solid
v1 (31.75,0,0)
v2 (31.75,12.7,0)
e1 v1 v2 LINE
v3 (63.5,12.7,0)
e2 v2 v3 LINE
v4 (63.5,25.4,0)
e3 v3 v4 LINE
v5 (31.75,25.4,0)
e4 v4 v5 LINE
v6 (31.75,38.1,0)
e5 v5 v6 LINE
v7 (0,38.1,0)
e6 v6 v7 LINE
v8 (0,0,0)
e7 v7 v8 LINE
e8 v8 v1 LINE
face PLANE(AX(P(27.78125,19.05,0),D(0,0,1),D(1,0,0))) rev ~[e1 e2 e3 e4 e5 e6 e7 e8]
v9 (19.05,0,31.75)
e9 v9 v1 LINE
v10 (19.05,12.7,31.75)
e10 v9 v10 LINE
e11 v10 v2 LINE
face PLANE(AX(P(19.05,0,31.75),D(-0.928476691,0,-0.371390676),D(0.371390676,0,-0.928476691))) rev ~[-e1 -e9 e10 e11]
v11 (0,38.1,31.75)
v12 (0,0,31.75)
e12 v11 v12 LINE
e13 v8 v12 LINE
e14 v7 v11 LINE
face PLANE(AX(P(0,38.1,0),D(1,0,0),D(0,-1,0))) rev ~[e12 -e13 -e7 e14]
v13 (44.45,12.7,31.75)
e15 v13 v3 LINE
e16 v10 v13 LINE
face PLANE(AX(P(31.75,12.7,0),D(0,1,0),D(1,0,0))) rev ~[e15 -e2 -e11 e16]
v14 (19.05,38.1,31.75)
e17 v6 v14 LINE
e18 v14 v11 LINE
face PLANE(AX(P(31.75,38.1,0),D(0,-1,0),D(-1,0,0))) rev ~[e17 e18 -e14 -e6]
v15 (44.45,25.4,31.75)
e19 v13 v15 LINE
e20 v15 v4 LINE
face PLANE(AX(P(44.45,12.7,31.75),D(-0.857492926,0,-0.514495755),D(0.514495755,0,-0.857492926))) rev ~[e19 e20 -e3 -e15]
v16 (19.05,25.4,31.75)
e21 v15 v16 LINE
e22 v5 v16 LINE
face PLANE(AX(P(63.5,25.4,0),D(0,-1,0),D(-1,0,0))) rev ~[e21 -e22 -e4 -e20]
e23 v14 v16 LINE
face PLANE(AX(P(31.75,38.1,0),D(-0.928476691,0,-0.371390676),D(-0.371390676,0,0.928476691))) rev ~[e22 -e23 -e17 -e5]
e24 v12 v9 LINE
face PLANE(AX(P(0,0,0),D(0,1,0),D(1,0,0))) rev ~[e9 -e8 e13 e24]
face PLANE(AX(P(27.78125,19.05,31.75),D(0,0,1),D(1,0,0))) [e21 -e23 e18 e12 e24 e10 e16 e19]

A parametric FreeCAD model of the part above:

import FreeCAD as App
import Part
import Sketcher
Q = App.Units.Quantity

doc = App.newDocument("Part")
body = doc.addObject("PartDesign::Body", "Body")

sketch1 = doc.addObject("Sketcher::SketchObject", "Sketch")
body.addObject(sketch1)
sketch1.AttachmentSupport = (doc.XY_Plane, [""])
sketch1.MapMode = "FlatFace"
sketch1.addGeometry(Part.LineSegment(App.Vector(0, 38.1, 0), App.Vector(0, 0, 0)), False)
sketch1.addGeometry(Part.LineSegment(App.Vector(0, 0, 0), App.Vector(31.75, 0, 0)), False)
sketch1.addGeometry(Part.LineSegment(App.Vector(31.75, 0, 0), App.Vector(31.75, 12.7, 0)), False)
sketch1.addGeometry(Part.LineSegment(App.Vector(31.75, 12.7, 0), App.Vector(63.5, 12.7, 0)), False)
sketch1.addGeometry(Part.LineSegment(App.Vector(63.5, 12.7, 0), App.Vector(63.5, 25.4, 0)), False)
sketch1.addGeometry(Part.LineSegment(App.Vector(63.5, 25.4, 0), App.Vector(31.75, 25.4, 0)), False)
sketch1.addGeometry(Part.LineSegment(App.Vector(31.75, 25.4, 0), App.Vector(31.75, 38.1, 0)), False)
sketch1.addGeometry(Part.LineSegment(App.Vector(31.75, 38.1, 0), App.Vector(0, 38.1, 0)), False)
sketch1.addConstraint(Sketcher.Constraint("Coincident", 0, 2, 1, 1))
sketch1.addConstraint(Sketcher.Constraint("Coincident", 1, 2, 2, 1))
sketch1.addConstraint(Sketcher.Constraint("Coincident", 2, 2, 3, 1))
sketch1.addConstraint(Sketcher.Constraint("Coincident", 3, 2, 4, 1))
sketch1.addConstraint(Sketcher.Constraint("Coincident", 4, 2, 5, 1))
sketch1.addConstraint(Sketcher.Constraint("Coincident", 5, 2, 6, 1))
sketch1.addConstraint(Sketcher.Constraint("Coincident", 6, 2, 7, 1))
sketch1.addConstraint(Sketcher.Constraint("Coincident", 7, 2, 0, 1))
sketch1.addConstraint(Sketcher.Constraint("Vertical", 0))
sketch1.addConstraint(Sketcher.Constraint("Horizontal", 1))
sketch1.addConstraint(Sketcher.Constraint("Vertical", 2))
sketch1.addConstraint(Sketcher.Constraint("Horizontal", 3))
sketch1.addConstraint(Sketcher.Constraint("Vertical", 4))
sketch1.addConstraint(Sketcher.Constraint("Horizontal", 5))
sketch1.addConstraint(Sketcher.Constraint("Vertical", 6))
sketch1.addConstraint(Sketcher.Constraint("Horizontal", 7))
sketch1.addConstraint(Sketcher.Constraint("Coincident", 0, 2, -1, 1))
sketch1.addConstraint(Sketcher.Constraint("Vertical", 2, 2, 5, 2))
sketch1.addConstraint(Sketcher.Constraint("Equal", 1, 3))
sketch1.addConstraint(Sketcher.Constraint("Equal", 2, 4))
sketch1.addConstraint(Sketcher.Constraint("Equal", 4, 6))
sketch1.addConstraint(Sketcher.Constraint("DistanceY", 0, 2, 0, 1, Q("1.5 in")))
sketch1.addConstraint(Sketcher.Constraint("DistanceX", 1, 1, 1, 2, Q("1.25 in")))
pad1 = doc.addObject("PartDesign::Pad", "Pad")
body.addObject(pad1)
pad1.Profile = sketch1
pad1.Length = Q("1.25 in")

sketch2 = doc.addObject("Sketcher::SketchObject", "Sketch001")
body.addObject(sketch2)
sketch2.AttachmentSupport = (doc.XZ_Plane, [""])
sketch2.MapMode = "FlatFace"
sketch2.addGeometry(Part.LineSegment(App.Vector(31.75, 31.75, 0), App.Vector(19.05, 31.75, 0)), False)
sketch2.addGeometry(Part.LineSegment(App.Vector(19.05, 31.75, 0), App.Vector(31.75, 0, 0)), False)
sketch2.addGeometry(Part.LineSegment(App.Vector(31.75, 0, 0), App.Vector(31.75, 31.75, 0)), False)
sketch2.addConstraint(Sketcher.Constraint("Coincident", 0, 2, 1, 1))
sketch2.addConstraint(Sketcher.Constraint("Coincident", 1, 2, 2, 1))
sketch2.addConstraint(Sketcher.Constraint("Coincident", 2, 2, 0, 1))
sketch2.addConstraint(Sketcher.Constraint("Horizontal", 0))
sketch2.addConstraint(Sketcher.Constraint("Vertical", 2))
sketch2.addConstraint(Sketcher.Constraint("PointOnObject", 1, 2, -1))
sketch2.addConstraint(Sketcher.Constraint("DistanceX", 0, 2, 0, 1, Q("0.5 in")))
sketch2.addConstraint(Sketcher.Constraint("DistanceY", 2, 1, 2, 2, Q("1.25 in")))
sketch2.addConstraint(Sketcher.Constraint("DistanceX", -1, 1, 0, 2, Q("0.75 in")))
pocket1 = doc.addObject("PartDesign::Pocket", "Pocket")
body.addObject(pocket1)
pocket1.Profile = sketch2
pocket1.Length = Q("0.5 in")

sketch3 = doc.addObject("Sketcher::SketchObject", "Sketch002")
body.addObject(sketch3)
sketch3.AttachmentSupport = (doc.XZ_Plane, [""])
sketch3.MapMode = "FlatFace"
sketch3.AttachmentOffset = App.Placement(App.Vector(0, 0, -0.5 * 25.4), App.Rotation())
sketch3.addGeometry(Part.LineSegment(App.Vector(63.5, 31.75, 0), App.Vector(44.45, 31.75, 0)), False)
sketch3.addGeometry(Part.LineSegment(App.Vector(44.45, 31.75, 0), App.Vector(63.5, 0, 0)), False)
sketch3.addGeometry(Part.LineSegment(App.Vector(63.5, 0, 0), App.Vector(63.5, 31.75, 0)), False)
sketch3.addConstraint(Sketcher.Constraint("Coincident", 0, 2, 1, 1))
sketch3.addConstraint(Sketcher.Constraint("Coincident", 1, 2, 2, 1))
sketch3.addConstraint(Sketcher.Constraint("Coincident", 2, 2, 0, 1))
sketch3.addConstraint(Sketcher.Constraint("Horizontal", 0))
sketch3.addConstraint(Sketcher.Constraint("Vertical", 2))
sketch3.addConstraint(Sketcher.Constraint("PointOnObject", 1, 2, -1))
sketch3.addConstraint(Sketcher.Constraint("DistanceX", 0, 2, 0, 1, Q("0.75 in")))
sketch3.addConstraint(Sketcher.Constraint("DistanceY", 2, 1, 2, 2, Q("1.25 in")))
sketch3.addConstraint(Sketcher.Constraint("DistanceX", -1, 1, 1, 2, Q("2.5 in")))
pocket2 = doc.addObject("PartDesign::Pocket", "Pocket001")
body.addObject(pocket2)
pocket2.Profile = sketch3
pocket2.Type = "ThroughAll"

sketch4 = doc.addObject("Sketcher::SketchObject", "Sketch003")
body.addObject(sketch4)
sketch4.AttachmentSupport = (doc.XZ_Plane, [""])
sketch4.MapMode = "FlatFace"
sketch4.AttachmentOffset = App.Placement(App.Vector(0, 0, -1.5 * 25.4), App.Rotation())
sketch4.addGeometry(Part.LineSegment(App.Vector(31.75, 0, 0), App.Vector(19.05, 31.75, 0)), False)
sketch4.addGeometry(Part.LineSegment(App.Vector(19.05, 31.75, 0), App.Vector(31.75, 31.75, 0)), False)
sketch4.addGeometry(Part.LineSegment(App.Vector(31.75, 31.75, 0), App.Vector(31.75, 0, 0)), False)
sketch4.addConstraint(Sketcher.Constraint("Coincident", 0, 2, 1, 1))
sketch4.addConstraint(Sketcher.Constraint("Coincident", 1, 2, 2, 1))
sketch4.addConstraint(Sketcher.Constraint("Coincident", 2, 2, 0, 1))
sketch4.addConstraint(Sketcher.Constraint("Horizontal", 1))
sketch4.addConstraint(Sketcher.Constraint("Vertical", 2))
sketch4.addConstraint(Sketcher.Constraint("PointOnObject", 2, 2, -1))
sketch4.addConstraint(Sketcher.Constraint("DistanceX", 1, 1, 1, 2, Q("0.5 in")))
sketch4.addConstraint(Sketcher.Constraint("DistanceY", 2, 2, 2, 1, Q("1.25 in")))
sketch4.addConstraint(Sketcher.Constraint("DistanceX", -1, 1, 0, 2, Q("0.75 in")))
pocket3 = doc.addObject("PartDesign::Pocket", "Pocket002")
body.addObject(pocket3)
pocket3.Profile = sketch4
pocket3.Length = Q("0.5 in")
pocket3.Reversed = True

doc.recompute()
